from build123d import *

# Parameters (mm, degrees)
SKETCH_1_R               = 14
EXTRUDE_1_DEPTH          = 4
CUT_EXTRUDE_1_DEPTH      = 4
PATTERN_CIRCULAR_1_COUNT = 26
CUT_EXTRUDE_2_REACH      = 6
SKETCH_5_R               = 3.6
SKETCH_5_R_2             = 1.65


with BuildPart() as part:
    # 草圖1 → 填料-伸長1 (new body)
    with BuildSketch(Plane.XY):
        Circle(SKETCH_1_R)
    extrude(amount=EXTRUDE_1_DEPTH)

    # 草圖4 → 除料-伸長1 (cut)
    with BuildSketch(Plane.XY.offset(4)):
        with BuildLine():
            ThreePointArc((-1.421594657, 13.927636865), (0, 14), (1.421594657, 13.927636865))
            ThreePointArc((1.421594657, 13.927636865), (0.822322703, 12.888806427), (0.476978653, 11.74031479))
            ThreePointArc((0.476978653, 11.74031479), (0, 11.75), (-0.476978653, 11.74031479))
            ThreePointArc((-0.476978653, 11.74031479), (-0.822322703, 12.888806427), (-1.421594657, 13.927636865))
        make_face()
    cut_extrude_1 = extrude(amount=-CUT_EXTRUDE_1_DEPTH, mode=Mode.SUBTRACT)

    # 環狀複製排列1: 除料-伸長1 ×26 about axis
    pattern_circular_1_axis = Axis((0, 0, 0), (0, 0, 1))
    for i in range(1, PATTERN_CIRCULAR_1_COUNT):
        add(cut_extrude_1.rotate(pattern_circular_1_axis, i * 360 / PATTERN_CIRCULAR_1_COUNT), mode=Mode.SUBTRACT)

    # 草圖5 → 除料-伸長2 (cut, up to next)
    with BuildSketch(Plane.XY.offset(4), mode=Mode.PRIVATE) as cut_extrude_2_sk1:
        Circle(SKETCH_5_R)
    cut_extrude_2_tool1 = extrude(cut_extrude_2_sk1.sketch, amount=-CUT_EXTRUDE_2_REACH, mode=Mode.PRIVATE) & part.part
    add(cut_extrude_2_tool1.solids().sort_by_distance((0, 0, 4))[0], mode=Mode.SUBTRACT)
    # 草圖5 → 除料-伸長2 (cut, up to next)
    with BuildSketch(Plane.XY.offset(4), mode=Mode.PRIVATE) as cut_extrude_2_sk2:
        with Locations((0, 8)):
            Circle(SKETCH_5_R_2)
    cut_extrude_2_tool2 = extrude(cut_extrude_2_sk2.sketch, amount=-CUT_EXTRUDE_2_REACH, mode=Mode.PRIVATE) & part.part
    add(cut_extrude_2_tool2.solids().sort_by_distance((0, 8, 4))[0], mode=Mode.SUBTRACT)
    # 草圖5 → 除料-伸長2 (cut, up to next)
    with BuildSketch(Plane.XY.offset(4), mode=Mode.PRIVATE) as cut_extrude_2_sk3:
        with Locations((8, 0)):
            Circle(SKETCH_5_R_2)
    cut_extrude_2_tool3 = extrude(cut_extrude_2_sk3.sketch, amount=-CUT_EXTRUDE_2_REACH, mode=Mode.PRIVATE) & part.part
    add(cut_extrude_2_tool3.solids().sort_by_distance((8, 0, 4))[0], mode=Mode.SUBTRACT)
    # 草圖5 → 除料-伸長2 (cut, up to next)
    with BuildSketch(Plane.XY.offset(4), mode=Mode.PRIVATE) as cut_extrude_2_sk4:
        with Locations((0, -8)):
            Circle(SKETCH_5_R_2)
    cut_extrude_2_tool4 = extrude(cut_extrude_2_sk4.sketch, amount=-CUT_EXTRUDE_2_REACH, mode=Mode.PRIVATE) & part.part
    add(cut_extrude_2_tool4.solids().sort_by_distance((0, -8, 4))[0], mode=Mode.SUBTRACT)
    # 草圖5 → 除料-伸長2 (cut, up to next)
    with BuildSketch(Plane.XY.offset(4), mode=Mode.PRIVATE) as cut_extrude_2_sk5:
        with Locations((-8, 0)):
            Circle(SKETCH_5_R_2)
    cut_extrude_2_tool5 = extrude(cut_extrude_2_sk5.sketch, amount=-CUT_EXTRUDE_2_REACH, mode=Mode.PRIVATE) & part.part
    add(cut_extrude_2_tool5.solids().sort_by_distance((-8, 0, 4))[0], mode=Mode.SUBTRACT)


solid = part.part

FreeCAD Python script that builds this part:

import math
import FreeCAD as App
import Part
import Sketcher
from FreeCAD import Vector
Q = App.Units.Quantity

doc = App.newDocument("Part")
body = doc.addObject("PartDesign::Body", "Body")

# Sketch on XY plane
sketch1 = body.newObject("Sketcher::SketchObject", "Sketch")
sketch1.AttachmentSupport = (doc.getObject("XY_Plane"), [""])
sketch1.MapMode = "FlatFace"
sketch1.addGeometry(Part.Circle(Vector(0, 0, 0), Vector(0, 0, 1), 14), False)
sketch1.addConstraint([
    Sketcher.Constraint("Coincident", 0, 3, -1, 1),
    Sketcher.Constraint("Diameter", 0, Q("28 mm")),
])
pad1 = body.newObject("PartDesign::Pad", "Pad")
pad1.Profile = sketch1
pad1.Length = 4

# Sketch on XY plane
sketch2 = body.newObject("Sketcher::SketchObject", "Sketch001")
sketch2.AttachmentSupport = (doc.getObject("XY_Plane"), [""])
sketch2.MapMode = "FlatFace"
sketch2.AttachmentOffset = App.Placement(Vector(0, 0, 4), App.Rotation())
sketch2.addGeometry([
    Part.ArcOfCircle(Part.Circle(Vector(0, 0, 0), Vector(0, 0, 1), 14), math.radians(84.172), math.radians(95.828)),
    Part.ArcOfCircle(Part.Circle(Vector(-5.596175, 10.827173, 0), Vector(0, 0, 1), 5.2), math.radians(10.113825), math.radians(36.601303)),
    Part.ArcOfCircle(Part.Circle(Vector(0, 0, 0), Vector(0, 0, 1), 11.75), math.radians(87.6735), math.radians(92.3265)),
    Part.ArcOfCircle(Part.Circle(Vector(5.596175, 10.827173, 0), Vector(0, 0, 1), 5.2), math.radians(143.398697), math.radians(169.886175)),
], False)
sketch2.addConstraint([
    Sketcher.Constraint("Coincident", 0, 2, 1, 2),
    Sketcher.Constraint("Coincident", 1, 1, 2, 2),
    Sketcher.Constraint("Coincident", 2, 1, 3, 2),
    Sketcher.Constraint("Coincident", 3, 1, 0, 1),
    Sketcher.Constraint("Coincident", 0, 3, -1, 1),
    Sketcher.Constraint("Coincident", 2, 3, -1, 1),
    Sketcher.Constraint("Equal", 1, 3),
    Sketcher.Constraint("Symmetric", 1, 3, 3, 3, -2),
    Sketcher.Constraint("Radius", 0, Q("14 mm")),
    Sketcher.Constraint("Radius", 1, Q("5.2 mm")),
    Sketcher.Constraint("Radius", 2, Q("11.75 mm")),
    Sketcher.Constraint("DistanceX", 1, 1, -1, 1, Q("0.476979 mm")),
    Sketcher.Constraint("DistanceX", 1, 3, 3, 3, Q("11.19235 mm")),
])
pocket1 = body.newObject("PartDesign::Pocket", "Pocket")
pocket1.Profile = sketch2
pocket1.Length = 4
doc.recompute()

polarpattern = body.newObject("PartDesign::PolarPattern", "PolarPattern")
polarpattern.Originals = [pocket1]
polarpattern.Axis = (doc.getObject("Z_Axis"), [""])
polarpattern.Angle = 360
polarpattern.Occurrences = 26
body.Tip = polarpattern

# Sketch on XY plane
sketch3 = body.newObject("Sketcher::SketchObject", "Sketch002")
sketch3.AttachmentSupport = (doc.getObject("XY_Plane"), [""])
sketch3.MapMode = "FlatFace"
sketch3.AttachmentOffset = App.Placement(Vector(0, 0, 4), App.Rotation())
sketch3.addGeometry(Part.Circle(Vector(0, 0, 0), Vector(0, 0, 1), 3.6), False)
sketch3.addConstraint([
    Sketcher.Constraint("Coincident", 0, 3, -1, 1),
    Sketcher.Constraint("Diameter", 0, Q("7.2 mm")),
])
pocket2 = body.newObject("PartDesign::Pocket", "Pocket001")
pocket2.Profile = sketch3
pocket2.Type = "UpToFirst"

# Sketch on XY plane
sketch4 = body.newObject("Sketcher::SketchObject", "Sketch003")
sketch4.AttachmentSupport = (doc.getObject("XY_Plane"), [""])
sketch4.MapMode = "FlatFace"
sketch4.AttachmentOffset = App.Placement(Vector(0, 0, 4), App.Rotation())
sketch4.addGeometry(Part.Circle(Vector(0, 8, 0), Vector(0, 0, 1), 1.65), False)
sketch4.addConstraint([
    Sketcher.Constraint("PointOnObject", 0, 3, -2),
    Sketcher.Constraint("Diameter", 0, Q("3.3 mm")),
    Sketcher.Constraint("DistanceY", -1, 1, 0, 3, Q("8 mm")),
])
pocket3 = body.newObject("PartDesign::Pocket", "Pocket002")
pocket3.Profile = sketch4
pocket3.Type = "UpToFirst"

# Sketch on XY plane
sketch5 = body.newObject("Sketcher::SketchObject", "Sketch004")
sketch5.AttachmentSupport = (doc.getObject("XY_Plane"), [""])
sketch5.MapMode = "FlatFace"
sketch5.AttachmentOffset = App.Placement(Vector(0, 0, 4), App.Rotation())
sketch5.addGeometry(Part.Circle(Vector(8, 0, 0), Vector(0, 0, 1), 1.65), False)
sketch5.addConstraint([
    Sketcher.Constraint("PointOnObject", 0, 3, -1),
    Sketcher.Constraint("Diameter", 0, Q("3.3 mm")),
    Sketcher.Constraint("DistanceX", -1, 1, 0, 3, Q("8 mm")),
])
pocket4 = body.newObject("PartDesign::Pocket", "Pocket003")
pocket4.Profile = sketch5
pocket4.Type = "UpToFirst"

# Sketch on XY plane
sketch6 = body.newObject("Sketcher::SketchObject", "Sketch005")
sketch6.AttachmentSupport = (doc.getObject("XY_Plane"), [""])
sketch6.MapMode = "FlatFace"
sketch6.AttachmentOffset = App.Placement(Vector(0, 0, 4), App.Rotation())
sketch6.addGeometry(Part.Circle(Vector(0, -8, 0), Vector(0, 0, 1), 1.65), False)
sketch6.addConstraint([
    Sketcher.Constraint("PointOnObject", 0, 3, -2),
    Sketcher.Constraint("Diameter", 0, Q("3.3 mm")),
    Sketcher.Constraint("DistanceY", 0, 3, -1, 1, Q("8 mm")),
])
pocket5 = body.newObject("PartDesign::Pocket", "Pocket004")
pocket5.Profile = sketch6
pocket5.Type = "UpToFirst"

# Sketch on XY plane
sketch7 = body.newObject("Sketcher::SketchObject", "Sketch006")
sketch7.AttachmentSupport = (doc.getObject("XY_Plane"), [""])
sketch7.MapMode = "FlatFace"
sketch7.AttachmentOffset = App.Placement(Vector(0, 0, 4), App.Rotation())
sketch7.addGeometry(Part.Circle(Vector(-8, 0, 0), Vector(0, 0, 1), 1.65), False)
sketch7.addConstraint([
    Sketcher.Constraint("PointOnObject", 0, 3, -1),
    Sketcher.Constraint("Diameter", 0, Q("3.3 mm")),
    Sketcher.Constraint("DistanceX", 0, 3, -1, 1, Q("8 mm")),
])
pocket6 = body.newObject("PartDesign::Pocket", "Pocket005")
pocket6.Profile = sketch7
pocket6.Type = "UpToFirst"

doc.recompute()
